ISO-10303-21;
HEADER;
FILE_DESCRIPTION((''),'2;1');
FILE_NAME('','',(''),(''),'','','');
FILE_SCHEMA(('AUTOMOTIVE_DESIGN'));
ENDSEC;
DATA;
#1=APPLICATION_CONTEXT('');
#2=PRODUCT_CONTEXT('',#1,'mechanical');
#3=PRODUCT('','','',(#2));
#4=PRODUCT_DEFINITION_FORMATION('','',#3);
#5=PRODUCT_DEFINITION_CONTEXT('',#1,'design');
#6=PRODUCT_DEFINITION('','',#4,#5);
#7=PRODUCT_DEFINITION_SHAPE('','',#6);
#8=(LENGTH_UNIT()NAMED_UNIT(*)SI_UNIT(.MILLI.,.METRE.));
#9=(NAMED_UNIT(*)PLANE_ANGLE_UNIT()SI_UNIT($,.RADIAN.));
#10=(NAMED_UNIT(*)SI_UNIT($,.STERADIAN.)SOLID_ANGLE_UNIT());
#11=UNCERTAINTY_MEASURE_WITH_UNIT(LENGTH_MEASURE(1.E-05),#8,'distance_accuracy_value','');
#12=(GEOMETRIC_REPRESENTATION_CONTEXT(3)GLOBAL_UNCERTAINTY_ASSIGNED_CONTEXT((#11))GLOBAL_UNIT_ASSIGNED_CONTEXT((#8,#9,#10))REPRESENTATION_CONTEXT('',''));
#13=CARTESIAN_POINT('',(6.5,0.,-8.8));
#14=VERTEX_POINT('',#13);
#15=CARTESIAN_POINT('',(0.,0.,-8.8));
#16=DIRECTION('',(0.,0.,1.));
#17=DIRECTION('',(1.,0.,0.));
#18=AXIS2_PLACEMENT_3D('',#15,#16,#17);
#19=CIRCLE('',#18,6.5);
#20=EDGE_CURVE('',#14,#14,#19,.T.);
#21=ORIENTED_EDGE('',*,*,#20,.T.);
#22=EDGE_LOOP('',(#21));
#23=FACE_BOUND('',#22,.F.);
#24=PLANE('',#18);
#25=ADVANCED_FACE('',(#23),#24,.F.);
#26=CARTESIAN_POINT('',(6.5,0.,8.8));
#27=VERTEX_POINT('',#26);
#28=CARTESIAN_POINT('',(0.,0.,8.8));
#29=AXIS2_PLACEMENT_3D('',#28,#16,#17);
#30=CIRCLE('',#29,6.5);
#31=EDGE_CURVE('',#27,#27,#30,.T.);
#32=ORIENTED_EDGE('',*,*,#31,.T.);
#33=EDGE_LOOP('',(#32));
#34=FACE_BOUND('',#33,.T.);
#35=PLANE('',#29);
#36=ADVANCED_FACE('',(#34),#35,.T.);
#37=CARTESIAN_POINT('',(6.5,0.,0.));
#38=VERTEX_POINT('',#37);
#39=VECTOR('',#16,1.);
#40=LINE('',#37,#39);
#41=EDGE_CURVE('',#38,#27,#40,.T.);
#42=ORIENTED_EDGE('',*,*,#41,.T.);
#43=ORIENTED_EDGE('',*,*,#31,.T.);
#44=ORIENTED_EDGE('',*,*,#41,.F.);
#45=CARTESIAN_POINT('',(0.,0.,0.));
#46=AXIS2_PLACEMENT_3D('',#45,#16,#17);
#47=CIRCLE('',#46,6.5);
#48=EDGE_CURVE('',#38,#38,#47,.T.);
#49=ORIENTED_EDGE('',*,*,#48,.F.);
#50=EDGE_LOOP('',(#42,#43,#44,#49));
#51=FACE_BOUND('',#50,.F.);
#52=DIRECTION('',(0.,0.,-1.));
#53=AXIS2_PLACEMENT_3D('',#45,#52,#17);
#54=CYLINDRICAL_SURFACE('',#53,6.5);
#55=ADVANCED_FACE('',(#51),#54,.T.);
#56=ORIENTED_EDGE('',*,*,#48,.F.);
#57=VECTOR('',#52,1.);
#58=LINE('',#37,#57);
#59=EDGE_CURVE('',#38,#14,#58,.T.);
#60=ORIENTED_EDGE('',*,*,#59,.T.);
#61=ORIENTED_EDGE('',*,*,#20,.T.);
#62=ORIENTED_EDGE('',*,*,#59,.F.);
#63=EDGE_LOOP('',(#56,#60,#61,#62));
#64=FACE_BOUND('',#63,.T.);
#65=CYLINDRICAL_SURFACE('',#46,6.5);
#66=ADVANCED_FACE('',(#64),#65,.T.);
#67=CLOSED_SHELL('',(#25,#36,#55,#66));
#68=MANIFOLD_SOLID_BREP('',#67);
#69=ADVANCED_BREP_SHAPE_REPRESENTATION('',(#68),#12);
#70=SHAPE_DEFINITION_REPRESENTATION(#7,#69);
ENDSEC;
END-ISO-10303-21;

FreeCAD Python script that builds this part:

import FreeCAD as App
import Part
import Sketcher

doc = App.newDocument("Part")
body = doc.addObject("PartDesign::Body", "Body")

# Sketch on XY plane
sketch1 = body.newObject("Sketcher::SketchObject", "Sketch")
sketch1.AttachmentSupport = (doc.getObject("XY_Plane"), [""])
sketch1.MapMode = "FlatFace"
sketch1.addGeometry(Part.Circle(App.Vector(0, 0, 0), App.Vector(0, 0, 1), 6), False)
sketch1.addConstraint([
    Sketcher.Constraint("Coincident", 0, 3, -1, 1),
    Sketcher.Constraint("Diameter", 0, 13.0),
])
pad1 = body.newObject("PartDesign::Pad", "Pad")
pad1.Profile = sketch1
pad1.Length = 17.6
pad1.Midplane = True

doc.recompute()
